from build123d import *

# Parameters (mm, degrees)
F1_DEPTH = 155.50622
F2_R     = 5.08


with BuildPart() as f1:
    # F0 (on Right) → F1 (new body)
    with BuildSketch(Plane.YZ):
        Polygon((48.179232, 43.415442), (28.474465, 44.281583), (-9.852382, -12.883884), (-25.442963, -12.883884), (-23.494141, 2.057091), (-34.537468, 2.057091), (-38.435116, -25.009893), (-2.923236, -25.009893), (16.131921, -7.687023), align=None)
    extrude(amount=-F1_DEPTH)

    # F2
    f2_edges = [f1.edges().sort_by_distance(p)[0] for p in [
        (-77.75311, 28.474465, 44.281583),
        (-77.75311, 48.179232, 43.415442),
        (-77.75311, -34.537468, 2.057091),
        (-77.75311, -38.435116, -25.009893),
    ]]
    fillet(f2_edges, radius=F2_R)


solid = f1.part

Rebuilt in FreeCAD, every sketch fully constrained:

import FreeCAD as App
import Part
import Sketcher
Q = App.Units.Quantity


def edges_at(feature, points):
    """Names of the edges that pass closest to the given points."""
    edges = feature.Shape.Edges
    near = lambda p: min(range(len(edges)), key=lambda i: edges[i].distToShape(Part.Vertex(*p))[0])
    return sorted({f"Edge{near(p) + 1}" for p in points})

doc = App.newDocument("Part")
body = doc.addObject("PartDesign::Body", "Body")

sketch1 = doc.addObject("Sketcher::SketchObject", "Sketch")
body.addObject(sketch1)
sketch1.AttachmentSupport = (doc.YZ_Plane, [""])
sketch1.MapMode = "FlatFace"
sketch1.addGeometry(Part.LineSegment(App.Vector(48, 43, 0), App.Vector(28, 44, 0)), False)
sketch1.addGeometry(Part.LineSegment(App.Vector(28, 44, 0), App.Vector(-10, -13, 0)), False)
sketch1.addGeometry(Part.LineSegment(App.Vector(-10, -13, 0), App.Vector(-25, -13, 0)), False)
sketch1.addGeometry(Part.LineSegment(App.Vector(-25, -13, 0), App.Vector(-23, 2, 0)), False)
sketch1.addGeometry(Part.LineSegment(App.Vector(-23, 2, 0), App.Vector(-35, 2, 0)), False)
sketch1.addGeometry(Part.LineSegment(App.Vector(-35, 2, 0), App.Vector(-38, -25, 0)), False)
sketch1.addGeometry(Part.LineSegment(App.Vector(-38, -25, 0), App.Vector(-3, -25, 0)), False)
sketch1.addGeometry(Part.LineSegment(App.Vector(-3, -25, 0), App.Vector(16, -8, 0)), False)
sketch1.addGeometry(Part.LineSegment(App.Vector(16, -8, 0), App.Vector(48, 43, 0)), False)
sketch1.addConstraint(Sketcher.Constraint("Coincident", 0, 2, 1, 1))
sketch1.addConstraint(Sketcher.Constraint("Coincident", 1, 2, 2, 1))
sketch1.addConstraint(Sketcher.Constraint("Coincident", 2, 2, 3, 1))
sketch1.addConstraint(Sketcher.Constraint("Coincident", 3, 2, 4, 1))
sketch1.addConstraint(Sketcher.Constraint("Coincident", 4, 2, 5, 1))
sketch1.addConstraint(Sketcher.Constraint("Coincident", 5, 2, 6, 1))
sketch1.addConstraint(Sketcher.Constraint("Coincident", 6, 2, 7, 1))
sketch1.addConstraint(Sketcher.Constraint("Coincident", 7, 2, 8, 1))
sketch1.addConstraint(Sketcher.Constraint("Coincident", 8, 2, 0, 1))
sketch1.addConstraint(Sketcher.Constraint("Horizontal", 2))
sketch1.addConstraint(Sketcher.Constraint("Horizontal", 4))
sketch1.addConstraint(Sketcher.Constraint("Horizontal", 6))
sketch1.addConstraint(Sketcher.Constraint("DistanceY", 8, 2, 0, 2, Q("0.0341 in")))
sketch1.addConstraint(Sketcher.Constraint("DistanceX", 2, 2, 2, 1, Q("15.590581 mm")))
sketch1.addConstraint(Sketcher.Constraint("DistanceX", 6, 1, 6, 2, Q("35.51188 mm")))
sketch1.addConstraint(Sketcher.Constraint("Distance", 1, Q("68.824689 mm")))
sketch1.addConstraint(Sketcher.Constraint("DistanceX", 4, 2, 4, 1, Q("11.043327 mm")))
sketch1.addConstraint(Sketcher.Constraint("DistanceX", 3, 2, -1, 1, Q("23.494141 mm")))
sketch1.addConstraint(Sketcher.Constraint("DistanceY", -1, 1, 3, 2, Q("2.057091 mm")))
sketch1.addConstraint(Sketcher.Constraint("DistanceX", -1, 1, 7, 2, Q("16.131921 mm")))
sketch1.addConstraint(Sketcher.Constraint("DistanceX", 2, 2, 3, 2, Q("1.948822 mm")))
sketch1.addConstraint(Sketcher.Constraint("DistanceY", 3, 2, 0, 2, Q("42.224492 mm")))
sketch1.addConstraint(Sketcher.Constraint("DistanceY", 5, 2, 2, 2, Q("12.126009 mm")))
sketch1.addConstraint(Sketcher.Constraint("DistanceX", 5, 2, 4, 2, Q("3.897648 mm")))
sketch1.addConstraint(Sketcher.Constraint("DistanceX", 5, 2, 0, 2, Q("66.909581 mm")))
sketch1.addConstraint(Sketcher.Constraint("DistanceY", 6, 2, 7, 2, Q("17.32287 mm")))
sketch1.addConstraint(Sketcher.Constraint("DistanceX", 7, 2, 8, 2, Q("32.047311 mm")))
pad1 = doc.addObject("PartDesign::Pad", "Pad")
body.addObject(pad1)
pad1.Profile = sketch1
pad1.Length = 155.50622
pad1.Reversed = True
doc.recompute()

fillet = doc.addObject("PartDesign::Fillet", "Fillet")
body.addObject(fillet)
fillet.Base = (pad1, edges_at(pad1, [
    (-77.753, 28.474, 44.282),
    (-77.753, 48.179, 43.415),
    (-77.753, -34.537, 2.057),
    (-77.753, -38.435, -25.01),
]))
fillet.Radius = Q("0.2 in")

doc.recompute()
